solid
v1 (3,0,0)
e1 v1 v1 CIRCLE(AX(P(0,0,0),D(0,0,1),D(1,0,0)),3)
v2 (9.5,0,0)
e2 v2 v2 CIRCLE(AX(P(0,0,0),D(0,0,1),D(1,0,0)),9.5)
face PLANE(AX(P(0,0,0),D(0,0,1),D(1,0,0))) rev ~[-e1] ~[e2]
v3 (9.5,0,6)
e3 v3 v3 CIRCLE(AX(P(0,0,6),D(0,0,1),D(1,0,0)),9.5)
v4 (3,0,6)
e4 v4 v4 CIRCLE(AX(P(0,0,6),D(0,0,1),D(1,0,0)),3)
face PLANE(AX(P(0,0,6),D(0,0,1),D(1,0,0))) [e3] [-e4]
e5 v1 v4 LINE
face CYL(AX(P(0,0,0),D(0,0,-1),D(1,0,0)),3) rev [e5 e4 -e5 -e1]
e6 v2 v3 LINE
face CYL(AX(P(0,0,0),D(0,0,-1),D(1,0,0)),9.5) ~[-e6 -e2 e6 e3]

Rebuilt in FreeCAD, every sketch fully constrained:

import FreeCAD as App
import Part
import Sketcher
from FreeCAD import Vector
Q = App.Units.Quantity

doc = App.newDocument("Part")
body = doc.addObject("PartDesign::Body", "Body")

sketch1 = doc.addObject("Sketcher::SketchObject", "Sketch")
body.addObject(sketch1)
sketch1.AttachmentSupport = (doc.XY_Plane, [""])
sketch1.MapMode = "FlatFace"
sketch1.addGeometry(Part.Circle(Vector(0, 0, 0), Vector(0, 0, 1), 9.5), False)
sketch1.addGeometry(Part.Circle(Vector(0, 0, 0), Vector(0, 0, 1), 3), False)
sketch1.addConstraint(Sketcher.Constraint("Coincident", 0, 3, -1, 1))
sketch1.addConstraint(Sketcher.Constraint("Coincident", 1, 3, -1, 1))
sketch1.addConstraint(Sketcher.Constraint("Diameter", 0, Q("19 mm")))
sketch1.addConstraint(Sketcher.Constraint("Diameter", 1, Q("6 mm")))
pad1 = doc.addObject("PartDesign::Pad", "Pad")
body.addObject(pad1)
pad1.Profile = sketch1
pad1.Length = 6

doc.recompute()
